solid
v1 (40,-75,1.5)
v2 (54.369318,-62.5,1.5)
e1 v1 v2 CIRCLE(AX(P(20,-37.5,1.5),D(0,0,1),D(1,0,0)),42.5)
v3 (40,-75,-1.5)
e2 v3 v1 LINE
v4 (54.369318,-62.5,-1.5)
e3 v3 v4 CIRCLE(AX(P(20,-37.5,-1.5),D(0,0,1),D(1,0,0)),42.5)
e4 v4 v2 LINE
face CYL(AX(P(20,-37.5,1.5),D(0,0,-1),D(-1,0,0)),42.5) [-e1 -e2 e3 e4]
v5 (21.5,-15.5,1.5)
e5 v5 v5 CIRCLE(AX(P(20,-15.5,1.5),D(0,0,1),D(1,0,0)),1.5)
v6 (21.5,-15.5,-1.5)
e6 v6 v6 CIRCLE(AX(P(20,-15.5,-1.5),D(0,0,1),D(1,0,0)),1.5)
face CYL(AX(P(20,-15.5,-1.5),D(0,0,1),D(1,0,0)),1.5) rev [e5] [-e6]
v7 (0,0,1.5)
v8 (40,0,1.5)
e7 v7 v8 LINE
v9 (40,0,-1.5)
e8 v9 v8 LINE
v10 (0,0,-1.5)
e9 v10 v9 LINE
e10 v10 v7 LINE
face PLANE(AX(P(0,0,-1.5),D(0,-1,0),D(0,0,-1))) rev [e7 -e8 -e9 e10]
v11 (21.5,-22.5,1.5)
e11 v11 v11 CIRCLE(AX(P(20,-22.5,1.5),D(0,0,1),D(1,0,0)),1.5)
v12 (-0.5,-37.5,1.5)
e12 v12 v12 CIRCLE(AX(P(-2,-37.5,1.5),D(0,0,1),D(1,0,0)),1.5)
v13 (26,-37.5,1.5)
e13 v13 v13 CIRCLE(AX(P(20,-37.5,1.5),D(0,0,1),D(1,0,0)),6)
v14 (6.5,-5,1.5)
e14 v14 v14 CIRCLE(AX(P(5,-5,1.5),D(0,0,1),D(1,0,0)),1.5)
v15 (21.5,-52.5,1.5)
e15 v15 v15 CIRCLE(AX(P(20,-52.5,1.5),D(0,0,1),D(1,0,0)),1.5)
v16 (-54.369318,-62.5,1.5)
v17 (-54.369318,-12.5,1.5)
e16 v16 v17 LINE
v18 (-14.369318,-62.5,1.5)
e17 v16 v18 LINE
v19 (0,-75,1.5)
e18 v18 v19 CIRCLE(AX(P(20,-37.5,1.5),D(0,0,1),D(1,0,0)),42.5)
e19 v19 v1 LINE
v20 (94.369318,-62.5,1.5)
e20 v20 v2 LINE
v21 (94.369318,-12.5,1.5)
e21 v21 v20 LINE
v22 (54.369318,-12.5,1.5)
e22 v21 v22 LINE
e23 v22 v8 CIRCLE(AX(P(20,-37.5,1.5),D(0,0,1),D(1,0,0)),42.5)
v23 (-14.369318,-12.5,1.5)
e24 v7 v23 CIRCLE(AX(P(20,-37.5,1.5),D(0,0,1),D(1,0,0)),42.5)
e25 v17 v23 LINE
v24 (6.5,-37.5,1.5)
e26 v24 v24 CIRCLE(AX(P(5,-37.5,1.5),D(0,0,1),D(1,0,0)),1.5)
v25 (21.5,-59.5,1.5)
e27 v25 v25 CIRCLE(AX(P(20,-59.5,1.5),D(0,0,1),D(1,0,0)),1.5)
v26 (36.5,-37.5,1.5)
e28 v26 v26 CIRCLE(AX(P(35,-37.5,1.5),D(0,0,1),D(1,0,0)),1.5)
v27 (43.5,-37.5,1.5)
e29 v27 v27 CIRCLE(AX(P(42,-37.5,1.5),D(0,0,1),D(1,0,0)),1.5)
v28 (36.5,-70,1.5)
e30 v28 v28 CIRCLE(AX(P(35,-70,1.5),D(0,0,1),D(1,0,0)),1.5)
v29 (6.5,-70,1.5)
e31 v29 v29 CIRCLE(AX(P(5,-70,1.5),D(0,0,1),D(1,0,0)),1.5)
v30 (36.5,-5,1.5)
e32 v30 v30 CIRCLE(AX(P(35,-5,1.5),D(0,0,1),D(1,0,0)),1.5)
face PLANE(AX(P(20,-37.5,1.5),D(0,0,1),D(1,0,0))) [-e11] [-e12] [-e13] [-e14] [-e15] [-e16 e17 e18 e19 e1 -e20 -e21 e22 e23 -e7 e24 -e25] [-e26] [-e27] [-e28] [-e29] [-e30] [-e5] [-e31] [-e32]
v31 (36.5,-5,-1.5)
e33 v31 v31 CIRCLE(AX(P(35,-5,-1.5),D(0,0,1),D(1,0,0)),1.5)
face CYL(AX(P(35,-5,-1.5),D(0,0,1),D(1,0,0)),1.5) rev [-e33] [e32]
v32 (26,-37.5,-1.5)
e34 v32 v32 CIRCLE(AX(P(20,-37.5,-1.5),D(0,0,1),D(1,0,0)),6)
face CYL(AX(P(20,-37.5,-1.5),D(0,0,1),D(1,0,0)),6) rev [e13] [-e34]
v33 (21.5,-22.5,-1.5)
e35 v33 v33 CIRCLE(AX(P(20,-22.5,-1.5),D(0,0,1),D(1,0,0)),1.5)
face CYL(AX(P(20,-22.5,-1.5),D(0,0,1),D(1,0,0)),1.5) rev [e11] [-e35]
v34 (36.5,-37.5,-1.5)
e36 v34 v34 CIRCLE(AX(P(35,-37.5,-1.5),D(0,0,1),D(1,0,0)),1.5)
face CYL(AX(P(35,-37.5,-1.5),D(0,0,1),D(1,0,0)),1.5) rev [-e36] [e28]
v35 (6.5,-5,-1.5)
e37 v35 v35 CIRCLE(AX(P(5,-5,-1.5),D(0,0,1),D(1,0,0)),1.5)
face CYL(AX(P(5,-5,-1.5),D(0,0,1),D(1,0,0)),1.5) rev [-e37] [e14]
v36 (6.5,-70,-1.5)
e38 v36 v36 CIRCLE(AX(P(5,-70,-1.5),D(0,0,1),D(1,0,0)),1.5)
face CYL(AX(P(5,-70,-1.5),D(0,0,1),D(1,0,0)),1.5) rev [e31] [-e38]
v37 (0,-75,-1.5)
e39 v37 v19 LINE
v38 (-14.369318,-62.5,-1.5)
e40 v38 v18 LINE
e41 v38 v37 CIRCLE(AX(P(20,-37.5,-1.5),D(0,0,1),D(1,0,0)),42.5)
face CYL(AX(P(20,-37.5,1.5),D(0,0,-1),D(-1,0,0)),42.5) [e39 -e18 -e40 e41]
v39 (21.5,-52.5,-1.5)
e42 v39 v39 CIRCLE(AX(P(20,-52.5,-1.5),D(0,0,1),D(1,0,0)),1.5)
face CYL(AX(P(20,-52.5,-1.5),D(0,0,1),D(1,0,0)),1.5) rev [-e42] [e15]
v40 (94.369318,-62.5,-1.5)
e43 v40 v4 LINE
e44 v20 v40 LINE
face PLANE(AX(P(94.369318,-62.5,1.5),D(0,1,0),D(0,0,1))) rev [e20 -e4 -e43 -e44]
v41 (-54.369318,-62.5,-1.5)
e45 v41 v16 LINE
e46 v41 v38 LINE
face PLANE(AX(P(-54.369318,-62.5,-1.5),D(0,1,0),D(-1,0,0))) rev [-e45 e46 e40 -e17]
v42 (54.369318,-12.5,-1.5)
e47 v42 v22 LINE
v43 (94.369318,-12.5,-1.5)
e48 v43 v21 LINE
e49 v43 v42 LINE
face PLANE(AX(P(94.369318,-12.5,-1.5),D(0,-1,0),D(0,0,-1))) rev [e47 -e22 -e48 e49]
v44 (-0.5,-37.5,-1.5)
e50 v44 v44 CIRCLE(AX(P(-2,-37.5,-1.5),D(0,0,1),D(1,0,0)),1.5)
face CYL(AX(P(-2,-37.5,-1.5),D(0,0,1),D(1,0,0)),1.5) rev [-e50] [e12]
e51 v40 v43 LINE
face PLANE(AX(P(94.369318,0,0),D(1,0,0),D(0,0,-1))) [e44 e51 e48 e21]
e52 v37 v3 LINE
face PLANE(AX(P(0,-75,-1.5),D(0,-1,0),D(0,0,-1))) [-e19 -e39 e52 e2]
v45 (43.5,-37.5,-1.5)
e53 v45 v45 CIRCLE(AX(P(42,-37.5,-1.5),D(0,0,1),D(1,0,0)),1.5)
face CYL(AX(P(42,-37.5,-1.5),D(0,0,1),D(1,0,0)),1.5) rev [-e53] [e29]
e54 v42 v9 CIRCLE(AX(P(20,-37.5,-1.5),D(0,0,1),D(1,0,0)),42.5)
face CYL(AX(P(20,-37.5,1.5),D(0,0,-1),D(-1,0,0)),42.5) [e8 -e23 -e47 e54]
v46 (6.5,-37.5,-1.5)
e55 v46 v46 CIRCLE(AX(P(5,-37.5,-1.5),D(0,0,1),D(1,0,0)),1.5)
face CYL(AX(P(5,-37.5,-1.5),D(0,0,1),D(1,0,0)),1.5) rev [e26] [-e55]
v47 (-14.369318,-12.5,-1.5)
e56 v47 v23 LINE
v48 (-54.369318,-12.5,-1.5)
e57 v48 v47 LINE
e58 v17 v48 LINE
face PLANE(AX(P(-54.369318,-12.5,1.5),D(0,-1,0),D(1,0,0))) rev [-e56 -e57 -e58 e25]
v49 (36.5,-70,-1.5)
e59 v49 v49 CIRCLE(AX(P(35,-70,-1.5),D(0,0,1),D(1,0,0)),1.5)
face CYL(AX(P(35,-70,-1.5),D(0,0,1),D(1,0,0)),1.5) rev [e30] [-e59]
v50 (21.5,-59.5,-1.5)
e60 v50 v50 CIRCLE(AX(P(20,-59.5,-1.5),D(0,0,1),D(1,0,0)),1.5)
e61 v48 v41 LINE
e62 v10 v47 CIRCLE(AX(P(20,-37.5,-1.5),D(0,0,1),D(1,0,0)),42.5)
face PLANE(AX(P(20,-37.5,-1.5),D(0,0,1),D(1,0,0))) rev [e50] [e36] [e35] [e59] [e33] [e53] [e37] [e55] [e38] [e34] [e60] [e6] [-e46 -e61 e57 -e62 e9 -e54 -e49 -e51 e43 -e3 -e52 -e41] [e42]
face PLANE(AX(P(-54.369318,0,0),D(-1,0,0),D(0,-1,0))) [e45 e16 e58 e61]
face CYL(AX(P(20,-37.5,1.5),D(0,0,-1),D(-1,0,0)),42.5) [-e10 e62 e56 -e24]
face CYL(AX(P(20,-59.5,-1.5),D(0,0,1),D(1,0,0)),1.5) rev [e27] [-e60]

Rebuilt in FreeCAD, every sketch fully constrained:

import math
import FreeCAD as App
import Part
import Sketcher

V = App.Vector
Q = App.Units.Quantity


def add_polygon(sketch, points):
    """Adds a closed chain of lines whose ends are joined by coincident constraints."""
    first, n = sketch.GeometryCount, len(points)
    for a, b in zip(points, points[1:] + points[:1]):
        sketch.addGeometry(Part.LineSegment(App.Vector(*a, 0), App.Vector(*b, 0)), False)
    for i in range(n):
        sketch.addConstraint(Sketcher.Constraint("Coincident", first + i, 2, first + (i + 1) % n, 1))

doc = App.newDocument("Part")
body = doc.addObject("PartDesign::Body", "Body")

# Sketch on XY plane
sketch1 = body.newObject("Sketcher::SketchObject", "Sketch")
sketch1.AttachmentSupport = (doc.getObject("XY_Plane"), [""])
sketch1.MapMode = "FlatFace"
sketch1.addGeometry(Part.Circle(V(20, -38, 0), V(0, 0, 1), 42), False)
sketch1.addConstraint(Sketcher.Constraint("Diameter", 0, Q("85 mm")))
sketch1.addConstraint(Sketcher.Constraint("DistanceX", -1, 1, 0, 3, Q("20 mm")))
sketch1.addConstraint(Sketcher.Constraint("DistanceY", 0, 3, -1, 1, Q("37.5 mm")))
pad1 = body.newObject("PartDesign::Pad", "Pad")
pad1.Profile = sketch1
pad1.Length = 3
pad1.Midplane = True

# Sketch on XY plane
sketch2 = body.newObject("Sketcher::SketchObject", "Sketch001")
sketch2.AttachmentSupport = (doc.getObject("XY_Plane"), [""])
sketch2.MapMode = "FlatFace"
sketch2.addGeometry(Part.ArcOfCircle(Part.Circle(V(20, -38, 0), V(0, 0, 1), 42), math.radians(62), math.radians(118)), False)
sketch2.addGeometry(Part.LineSegment(V(0, 0, 0), V(40, 0, 0)), False)
sketch2.addConstraint(Sketcher.Constraint("Coincident", 0, 1, 1, 2))
sketch2.addConstraint(Sketcher.Constraint("Coincident", 1, 1, 0, 2))
sketch2.addConstraint(Sketcher.Constraint("Horizontal", 1))
sketch2.addConstraint(Sketcher.Constraint("Coincident", 1, 1, -1, 1))
sketch2.addConstraint(Sketcher.Constraint("Radius", 0, Q("42.5 mm")))
sketch2.addConstraint(Sketcher.Constraint("DistanceX", 1, 1, 1, 2, Q("40 mm")))
pocket1 = body.newObject("PartDesign::Pocket", "Pocket")
pocket1.Profile = sketch2
pocket1.Length = 3
pocket1.Midplane = True

# Sketch on XY plane
sketch3 = body.newObject("Sketcher::SketchObject", "Sketch002")
sketch3.AttachmentSupport = (doc.getObject("XY_Plane"), [""])
sketch3.MapMode = "FlatFace"
sketch3.addGeometry(Part.LineSegment(V(40, -75, 0), V(0, -75, 0)), False)
sketch3.addGeometry(Part.ArcOfCircle(Part.Circle(V(20, -38, 0), V(0, 0, 1), 42), math.radians(-118), math.radians(-62)), False)
sketch3.addConstraint(Sketcher.Constraint("Coincident", 0, 1, 1, 2))
sketch3.addConstraint(Sketcher.Constraint("Coincident", 1, 1, 0, 2))
sketch3.addConstraint(Sketcher.Constraint("Horizontal", 0))
sketch3.addConstraint(Sketcher.Constraint("PointOnObject", 1, 1, -2))
sketch3.addConstraint(Sketcher.Constraint("Radius", 1, Q("42.5 mm")))
sketch3.addConstraint(Sketcher.Constraint("DistanceX", 0, 2, 0, 1, Q("40 mm")))
sketch3.addConstraint(Sketcher.Constraint("DistanceY", 0, 1, -1, 1, Q("75 mm")))
pocket2 = body.newObject("PartDesign::Pocket", "Pocket001")
pocket2.Profile = sketch3
pocket2.Length = 3
pocket2.Midplane = True

# Sketch on XY plane
sketch4 = body.newObject("Sketcher::SketchObject", "Sketch003")
sketch4.AttachmentSupport = (doc.getObject("XY_Plane"), [""])
sketch4.MapMode = "FlatFace"
sketch4.addGeometry(Part.Circle(V(5, -5, 0), V(0, 0, 1), 1.5), False)
sketch4.addConstraint(Sketcher.Constraint("Diameter", 0, Q("3 mm")))
sketch4.addConstraint(Sketcher.Constraint("DistanceX", -1, 1, 0, 3, Q("5 mm")))
sketch4.addConstraint(Sketcher.Constraint("DistanceY", 0, 3, -1, 1, Q("5 mm")))
pocket3 = body.newObject("PartDesign::Pocket", "Pocket002")
pocket3.Profile = sketch4
pocket3.Length = 3
pocket3.Midplane = True

# Sketch on XY plane
sketch5 = body.newObject("Sketcher::SketchObject", "Sketch004")
sketch5.AttachmentSupport = (doc.getObject("XY_Plane"), [""])
sketch5.MapMode = "FlatFace"
sketch5.addGeometry(Part.Circle(V(35, -5, 0), V(0, 0, 1), 1.5), False)
sketch5.addConstraint(Sketcher.Constraint("Diameter", 0, Q("3 mm")))
sketch5.addConstraint(Sketcher.Constraint("DistanceX", -1, 1, 0, 3, Q("35 mm")))
sketch5.addConstraint(Sketcher.Constraint("DistanceY", 0, 3, -1, 1, Q("5 mm")))
pocket4 = body.newObject("PartDesign::Pocket", "Pocket003")
pocket4.Profile = sketch5
pocket4.Length = 3
pocket4.Midplane = True

# Sketch on XY plane
sketch6 = body.newObject("Sketcher::SketchObject", "Sketch005")
sketch6.AttachmentSupport = (doc.getObject("XY_Plane"), [""])
sketch6.MapMode = "FlatFace"
sketch6.addGeometry(Part.Circle(V(5, -70, 0), V(0, 0, 1), 1.5), False)
sketch6.addConstraint(Sketcher.Constraint("Diameter", 0, Q("3 mm")))
sketch6.addConstraint(Sketcher.Constraint("DistanceX", -1, 1, 0, 3, Q("5 mm")))
sketch6.addConstraint(Sketcher.Constraint("DistanceY", 0, 3, -1, 1, Q("70 mm")))
pocket5 = body.newObject("PartDesign::Pocket", "Pocket004")
pocket5.Profile = sketch6
pocket5.Length = 3
pocket5.Midplane = True

# Sketch on XY plane
sketch7 = body.newObject("Sketcher::SketchObject", "Sketch006")
sketch7.AttachmentSupport = (doc.getObject("XY_Plane"), [""])
sketch7.MapMode = "FlatFace"
sketch7.addGeometry(Part.Circle(V(35, -70, 0), V(0, 0, 1), 1.5), False)
sketch7.addConstraint(Sketcher.Constraint("Diameter", 0, Q("3 mm")))
sketch7.addConstraint(Sketcher.Constraint("DistanceX", -1, 1, 0, 3, Q("35 mm")))
sketch7.addConstraint(Sketcher.Constraint("DistanceY", 0, 3, -1, 1, Q("70 mm")))
pocket6 = body.newObject("PartDesign::Pocket", "Pocket005")
pocket6.Profile = sketch7
pocket6.Length = 3
pocket6.Midplane = True

# Sketch on XY plane
sketch8 = body.newObject("Sketcher::SketchObject", "Sketch007")
sketch8.AttachmentSupport = (doc.getObject("XY_Plane"), [""])
sketch8.MapMode = "FlatFace"
sketch8.AttachmentOffset = App.Placement(V(0, 0, 1.5), App.Rotation())
sketch8.addGeometry(Part.Circle(V(20, -15.5, 0), V(0, 0, 1), 1.5), False)
sketch8.addGeometry(Part.Circle(V(-2, -37.5, 0), V(0, 0, 1), 1.5), False)
sketch8.addGeometry(Part.Circle(V(42, -37.5, 0), V(0, 0, 1), 1.5), False)
sketch8.addGeometry(Part.Circle(V(20, -59.5, 0), V(0, 0, 1), 1.5), False)
sketch8.addGeometry(Part.Circle(V(20, -22.5, 0), V(0, 0, 1), 1.5), False)
sketch8.addGeometry(Part.Circle(V(5, -37.5, 0), V(0, 0, 1), 1.5), False)
sketch8.addGeometry(Part.Circle(V(20, -52.5, 0), V(0, 0, 1), 1.5), False)
sketch8.addGeometry(Part.Circle(V(35, -37.5, 0), V(0, 0, 1), 1.5), False)
sketch8.addConstraint(Sketcher.Constraint("Equal", 0, 1))
sketch8.addConstraint(Sketcher.Constraint("Equal", 1, 2))
sketch8.addConstraint(Sketcher.Constraint("Equal", 2, 3))
sketch8.addConstraint(Sketcher.Constraint("Equal", 3, 4))
sketch8.addConstraint(Sketcher.Constraint("Equal", 4, 5))
sketch8.addConstraint(Sketcher.Constraint("Equal", 5, 6))
sketch8.addConstraint(Sketcher.Constraint("Equal", 6, 7))
sketch8.addConstraint(Sketcher.Constraint("Horizontal", 1, 3, 2, 3))
sketch8.addConstraint(Sketcher.Constraint("Horizontal", 2, 3, 5, 3))
sketch8.addConstraint(Sketcher.Constraint("Horizontal", 5, 3, 7, 3))
sketch8.addConstraint(Sketcher.Constraint("Vertical", 0, 3, 3, 3))
sketch8.addConstraint(Sketcher.Constraint("Vertical", 3, 3, 4, 3))
sketch8.addConstraint(Sketcher.Constraint("Vertical", 4, 3, 6, 3))
sketch8.addConstraint(Sketcher.Constraint("Diameter", 0, Q("3 mm")))
sketch8.addConstraint(Sketcher.Constraint("DistanceX", -1, 1, 0, 3, Q("20 mm")))
sketch8.addConstraint(Sketcher.Constraint("DistanceX", 1, 3, -1, 1, Q("2 mm")))
sketch8.addConstraint(Sketcher.Constraint("DistanceX", -1, 1, 2, 3, Q("42 mm")))
sketch8.addConstraint(Sketcher.Constraint("DistanceX", -1, 1, 5, 3, Q("5 mm")))
sketch8.addConstraint(Sketcher.Constraint("DistanceX", -1, 1, 7, 3, Q("35 mm")))
sketch8.addConstraint(Sketcher.Constraint("DistanceY", 1, 3, 0, 3, Q("22 mm")))
sketch8.addConstraint(Sketcher.Constraint("DistanceY", 3, 3, 1, 3, Q("22 mm")))
sketch8.addConstraint(Sketcher.Constraint("DistanceY", 4, 3, 0, 3, Q("7 mm")))
sketch8.addConstraint(Sketcher.Constraint("DistanceY", 3, 3, 6, 3, Q("7 mm")))
sketch8.addConstraint(Sketcher.Constraint("DistanceY", 0, 3, -1, 1, Q("15.5 mm")))
pocket7 = body.newObject("PartDesign::Pocket", "Pocket006")
pocket7.Profile = sketch8
pocket7.Type = "ThroughAll"

# Sketch on XY plane
sketch9 = body.newObject("Sketcher::SketchObject", "Sketch008")
sketch9.AttachmentSupport = (doc.getObject("XY_Plane"), [""])
sketch9.MapMode = "FlatFace"
sketch9.AttachmentOffset = App.Placement(V(0, 0, 1.5), App.Rotation())
sketch9.addGeometry(Part.Circle(V(20, -38, 0), V(0, 0, 1), 6), False)
sketch9.addConstraint(Sketcher.Constraint("Diameter", 0, Q("12 mm")))
sketch9.addConstraint(Sketcher.Constraint("DistanceX", -1, 1, 0, 3, Q("20 mm")))
sketch9.addConstraint(Sketcher.Constraint("DistanceY", 0, 3, -1, 1, Q("37.5 mm")))
pocket8 = body.newObject("PartDesign::Pocket", "Pocket007")
pocket8.Profile = sketch9
pocket8.Type = "ThroughAll"

# Sketch on XY plane
sketch10 = body.newObject("Sketcher::SketchObject", "Sketch009")
sketch10.AttachmentSupport = (doc.getObject("XY_Plane"), [""])
sketch10.MapMode = "FlatFace"
sketch10.AttachmentOffset = App.Placement(V(0, 0, 1.5), App.Rotation())
sketch10.addGeometry(Part.LineSegment(V(-14, -62, 0), V(-14, -12, 0)), False)
sketch10.addGeometry(Part.ArcOfCircle(Part.Circle(V(20, -38, 0), V(0, 0, 1), 42), math.radians(144), math.radians(216)), False)
sketch10.addGeometry(Part.ArcOfCircle(Part.Circle(V(20, -38, 0), V(0, 0, 1), 42), math.radians(-36), math.radians(36)), False)
sketch10.addGeometry(Part.LineSegment(V(54, -12, 0), V(54, -62, 0)), False)
sketch10.addConstraint(Sketcher.Constraint("Coincident", 0, 1, 1, 2))
sketch10.addConstraint(Sketcher.Constraint("Coincident", 1, 1, 0, 2))
sketch10.addConstraint(Sketcher.Constraint("Coincident", 2, 1, 3, 2))
sketch10.addConstraint(Sketcher.Constraint("Coincident", 3, 1, 2, 2))
sketch10.addConstraint(Sketcher.Constraint("Vertical", 0))
sketch10.addConstraint(Sketcher.Constraint("Vertical", 3))
sketch10.addConstraint(Sketcher.Constraint("Coincident", 2, 3, 1, 3))
sketch10.addConstraint(Sketcher.Constraint("Equal", 1, 2))
sketch10.addConstraint(Sketcher.Constraint("Horizontal", 0, 1, 2, 1))
sketch10.addConstraint(Sketcher.Constraint("Radius", 1, Q("42.5 mm")))
sketch10.addConstraint(Sketcher.Constraint("DistanceY", 0, 1, 0, 2, Q("50 mm")))
sketch10.addConstraint(Sketcher.Constraint("DistanceX", -1, 1, 1, 3, Q("20 mm")))
sketch10.addConstraint(Sketcher.Constraint("DistanceY", 1, 3, -1, 1, Q("37.5 mm")))
pocket9 = body.newObject("PartDesign::Pocket", "Pocket008")
pocket9.Profile = sketch10
pocket9.Length = 10
pocket9.Midplane = True

# Sketch on YZ plane
sketch11 = body.newObject("Sketcher::SketchObject", "Sketch010")
sketch11.AttachmentSupport = (doc.getObject("YZ_Plane"), [""])
sketch11.MapMode = "FlatFace"
sketch11.AttachmentOffset = App.Placement(V(0, 0, 54.369318), App.Rotation())
add_polygon(sketch11, [(-12.5, 1.5), (-62.5, 1.5), (-62.5, -1.5), (-12.5, -1.5)])  # lines 0-3
sketch11.addConstraint(Sketcher.Constraint("Horizontal", 0))
sketch11.addConstraint(Sketcher.Constraint("Vertical", 1))
sketch11.addConstraint(Sketcher.Constraint("Horizontal", 2))
sketch11.addConstraint(Sketcher.Constraint("Vertical", 3))
sketch11.addConstraint(Sketcher.Constraint("DistanceX", 0, 2, 0, 1, Q("50 mm")))
sketch11.addConstraint(Sketcher.Constraint("DistanceY", 1, 2, 1, 1, Q("3 mm")))
sketch11.addConstraint(Sketcher.Constraint("DistanceX", 0, 2, -1, 1, Q("62.5 mm")))
sketch11.addConstraint(Sketcher.Constraint("DistanceY", -1, 1, 0, 2, Q("1.5 mm")))
pad2 = body.newObject("PartDesign::Pad", "Pad001")
pad2.Profile = sketch11
pad2.Length = 40

# Sketch on YZ plane
sketch12 = body.newObject("Sketcher::SketchObject", "Sketch011")
sketch12.AttachmentSupport = (doc.getObject("YZ_Plane"), [""])
sketch12.MapMode = "FlatFace"
sketch12.AttachmentOffset = App.Placement(V(0, 0, -14.369318), App.Rotation())
add_polygon(sketch12, [(-12.5, -1.5), (-62.5, -1.5), (-62.5, 1.5), (-12.5, 1.5)])  # lines 0-3
sketch12.addConstraint(Sketcher.Constraint("Horizontal", 0))
sketch12.addConstraint(Sketcher.Constraint("Vertical", 1))
sketch12.addConstraint(Sketcher.Constraint("Horizontal", 2))
sketch12.addConstraint(Sketcher.Constraint("Vertical", 3))
sketch12.addConstraint(Sketcher.Constraint("DistanceX", 0, 2, 0, 1, Q("50 mm")))
sketch12.addConstraint(Sketcher.Constraint("DistanceY", 1, 1, 1, 2, Q("3 mm")))
sketch12.addConstraint(Sketcher.Constraint("DistanceX", 0, 2, -1, 1, Q("62.5 mm")))
sketch12.addConstraint(Sketcher.Constraint("DistanceY", 0, 2, -1, 1, Q("1.5 mm")))
pad3 = body.newObject("PartDesign::Pad", "Pad002")
pad3.Profile = sketch12
pad3.Length = 40
pad3.Reversed = True

doc.recompute()
